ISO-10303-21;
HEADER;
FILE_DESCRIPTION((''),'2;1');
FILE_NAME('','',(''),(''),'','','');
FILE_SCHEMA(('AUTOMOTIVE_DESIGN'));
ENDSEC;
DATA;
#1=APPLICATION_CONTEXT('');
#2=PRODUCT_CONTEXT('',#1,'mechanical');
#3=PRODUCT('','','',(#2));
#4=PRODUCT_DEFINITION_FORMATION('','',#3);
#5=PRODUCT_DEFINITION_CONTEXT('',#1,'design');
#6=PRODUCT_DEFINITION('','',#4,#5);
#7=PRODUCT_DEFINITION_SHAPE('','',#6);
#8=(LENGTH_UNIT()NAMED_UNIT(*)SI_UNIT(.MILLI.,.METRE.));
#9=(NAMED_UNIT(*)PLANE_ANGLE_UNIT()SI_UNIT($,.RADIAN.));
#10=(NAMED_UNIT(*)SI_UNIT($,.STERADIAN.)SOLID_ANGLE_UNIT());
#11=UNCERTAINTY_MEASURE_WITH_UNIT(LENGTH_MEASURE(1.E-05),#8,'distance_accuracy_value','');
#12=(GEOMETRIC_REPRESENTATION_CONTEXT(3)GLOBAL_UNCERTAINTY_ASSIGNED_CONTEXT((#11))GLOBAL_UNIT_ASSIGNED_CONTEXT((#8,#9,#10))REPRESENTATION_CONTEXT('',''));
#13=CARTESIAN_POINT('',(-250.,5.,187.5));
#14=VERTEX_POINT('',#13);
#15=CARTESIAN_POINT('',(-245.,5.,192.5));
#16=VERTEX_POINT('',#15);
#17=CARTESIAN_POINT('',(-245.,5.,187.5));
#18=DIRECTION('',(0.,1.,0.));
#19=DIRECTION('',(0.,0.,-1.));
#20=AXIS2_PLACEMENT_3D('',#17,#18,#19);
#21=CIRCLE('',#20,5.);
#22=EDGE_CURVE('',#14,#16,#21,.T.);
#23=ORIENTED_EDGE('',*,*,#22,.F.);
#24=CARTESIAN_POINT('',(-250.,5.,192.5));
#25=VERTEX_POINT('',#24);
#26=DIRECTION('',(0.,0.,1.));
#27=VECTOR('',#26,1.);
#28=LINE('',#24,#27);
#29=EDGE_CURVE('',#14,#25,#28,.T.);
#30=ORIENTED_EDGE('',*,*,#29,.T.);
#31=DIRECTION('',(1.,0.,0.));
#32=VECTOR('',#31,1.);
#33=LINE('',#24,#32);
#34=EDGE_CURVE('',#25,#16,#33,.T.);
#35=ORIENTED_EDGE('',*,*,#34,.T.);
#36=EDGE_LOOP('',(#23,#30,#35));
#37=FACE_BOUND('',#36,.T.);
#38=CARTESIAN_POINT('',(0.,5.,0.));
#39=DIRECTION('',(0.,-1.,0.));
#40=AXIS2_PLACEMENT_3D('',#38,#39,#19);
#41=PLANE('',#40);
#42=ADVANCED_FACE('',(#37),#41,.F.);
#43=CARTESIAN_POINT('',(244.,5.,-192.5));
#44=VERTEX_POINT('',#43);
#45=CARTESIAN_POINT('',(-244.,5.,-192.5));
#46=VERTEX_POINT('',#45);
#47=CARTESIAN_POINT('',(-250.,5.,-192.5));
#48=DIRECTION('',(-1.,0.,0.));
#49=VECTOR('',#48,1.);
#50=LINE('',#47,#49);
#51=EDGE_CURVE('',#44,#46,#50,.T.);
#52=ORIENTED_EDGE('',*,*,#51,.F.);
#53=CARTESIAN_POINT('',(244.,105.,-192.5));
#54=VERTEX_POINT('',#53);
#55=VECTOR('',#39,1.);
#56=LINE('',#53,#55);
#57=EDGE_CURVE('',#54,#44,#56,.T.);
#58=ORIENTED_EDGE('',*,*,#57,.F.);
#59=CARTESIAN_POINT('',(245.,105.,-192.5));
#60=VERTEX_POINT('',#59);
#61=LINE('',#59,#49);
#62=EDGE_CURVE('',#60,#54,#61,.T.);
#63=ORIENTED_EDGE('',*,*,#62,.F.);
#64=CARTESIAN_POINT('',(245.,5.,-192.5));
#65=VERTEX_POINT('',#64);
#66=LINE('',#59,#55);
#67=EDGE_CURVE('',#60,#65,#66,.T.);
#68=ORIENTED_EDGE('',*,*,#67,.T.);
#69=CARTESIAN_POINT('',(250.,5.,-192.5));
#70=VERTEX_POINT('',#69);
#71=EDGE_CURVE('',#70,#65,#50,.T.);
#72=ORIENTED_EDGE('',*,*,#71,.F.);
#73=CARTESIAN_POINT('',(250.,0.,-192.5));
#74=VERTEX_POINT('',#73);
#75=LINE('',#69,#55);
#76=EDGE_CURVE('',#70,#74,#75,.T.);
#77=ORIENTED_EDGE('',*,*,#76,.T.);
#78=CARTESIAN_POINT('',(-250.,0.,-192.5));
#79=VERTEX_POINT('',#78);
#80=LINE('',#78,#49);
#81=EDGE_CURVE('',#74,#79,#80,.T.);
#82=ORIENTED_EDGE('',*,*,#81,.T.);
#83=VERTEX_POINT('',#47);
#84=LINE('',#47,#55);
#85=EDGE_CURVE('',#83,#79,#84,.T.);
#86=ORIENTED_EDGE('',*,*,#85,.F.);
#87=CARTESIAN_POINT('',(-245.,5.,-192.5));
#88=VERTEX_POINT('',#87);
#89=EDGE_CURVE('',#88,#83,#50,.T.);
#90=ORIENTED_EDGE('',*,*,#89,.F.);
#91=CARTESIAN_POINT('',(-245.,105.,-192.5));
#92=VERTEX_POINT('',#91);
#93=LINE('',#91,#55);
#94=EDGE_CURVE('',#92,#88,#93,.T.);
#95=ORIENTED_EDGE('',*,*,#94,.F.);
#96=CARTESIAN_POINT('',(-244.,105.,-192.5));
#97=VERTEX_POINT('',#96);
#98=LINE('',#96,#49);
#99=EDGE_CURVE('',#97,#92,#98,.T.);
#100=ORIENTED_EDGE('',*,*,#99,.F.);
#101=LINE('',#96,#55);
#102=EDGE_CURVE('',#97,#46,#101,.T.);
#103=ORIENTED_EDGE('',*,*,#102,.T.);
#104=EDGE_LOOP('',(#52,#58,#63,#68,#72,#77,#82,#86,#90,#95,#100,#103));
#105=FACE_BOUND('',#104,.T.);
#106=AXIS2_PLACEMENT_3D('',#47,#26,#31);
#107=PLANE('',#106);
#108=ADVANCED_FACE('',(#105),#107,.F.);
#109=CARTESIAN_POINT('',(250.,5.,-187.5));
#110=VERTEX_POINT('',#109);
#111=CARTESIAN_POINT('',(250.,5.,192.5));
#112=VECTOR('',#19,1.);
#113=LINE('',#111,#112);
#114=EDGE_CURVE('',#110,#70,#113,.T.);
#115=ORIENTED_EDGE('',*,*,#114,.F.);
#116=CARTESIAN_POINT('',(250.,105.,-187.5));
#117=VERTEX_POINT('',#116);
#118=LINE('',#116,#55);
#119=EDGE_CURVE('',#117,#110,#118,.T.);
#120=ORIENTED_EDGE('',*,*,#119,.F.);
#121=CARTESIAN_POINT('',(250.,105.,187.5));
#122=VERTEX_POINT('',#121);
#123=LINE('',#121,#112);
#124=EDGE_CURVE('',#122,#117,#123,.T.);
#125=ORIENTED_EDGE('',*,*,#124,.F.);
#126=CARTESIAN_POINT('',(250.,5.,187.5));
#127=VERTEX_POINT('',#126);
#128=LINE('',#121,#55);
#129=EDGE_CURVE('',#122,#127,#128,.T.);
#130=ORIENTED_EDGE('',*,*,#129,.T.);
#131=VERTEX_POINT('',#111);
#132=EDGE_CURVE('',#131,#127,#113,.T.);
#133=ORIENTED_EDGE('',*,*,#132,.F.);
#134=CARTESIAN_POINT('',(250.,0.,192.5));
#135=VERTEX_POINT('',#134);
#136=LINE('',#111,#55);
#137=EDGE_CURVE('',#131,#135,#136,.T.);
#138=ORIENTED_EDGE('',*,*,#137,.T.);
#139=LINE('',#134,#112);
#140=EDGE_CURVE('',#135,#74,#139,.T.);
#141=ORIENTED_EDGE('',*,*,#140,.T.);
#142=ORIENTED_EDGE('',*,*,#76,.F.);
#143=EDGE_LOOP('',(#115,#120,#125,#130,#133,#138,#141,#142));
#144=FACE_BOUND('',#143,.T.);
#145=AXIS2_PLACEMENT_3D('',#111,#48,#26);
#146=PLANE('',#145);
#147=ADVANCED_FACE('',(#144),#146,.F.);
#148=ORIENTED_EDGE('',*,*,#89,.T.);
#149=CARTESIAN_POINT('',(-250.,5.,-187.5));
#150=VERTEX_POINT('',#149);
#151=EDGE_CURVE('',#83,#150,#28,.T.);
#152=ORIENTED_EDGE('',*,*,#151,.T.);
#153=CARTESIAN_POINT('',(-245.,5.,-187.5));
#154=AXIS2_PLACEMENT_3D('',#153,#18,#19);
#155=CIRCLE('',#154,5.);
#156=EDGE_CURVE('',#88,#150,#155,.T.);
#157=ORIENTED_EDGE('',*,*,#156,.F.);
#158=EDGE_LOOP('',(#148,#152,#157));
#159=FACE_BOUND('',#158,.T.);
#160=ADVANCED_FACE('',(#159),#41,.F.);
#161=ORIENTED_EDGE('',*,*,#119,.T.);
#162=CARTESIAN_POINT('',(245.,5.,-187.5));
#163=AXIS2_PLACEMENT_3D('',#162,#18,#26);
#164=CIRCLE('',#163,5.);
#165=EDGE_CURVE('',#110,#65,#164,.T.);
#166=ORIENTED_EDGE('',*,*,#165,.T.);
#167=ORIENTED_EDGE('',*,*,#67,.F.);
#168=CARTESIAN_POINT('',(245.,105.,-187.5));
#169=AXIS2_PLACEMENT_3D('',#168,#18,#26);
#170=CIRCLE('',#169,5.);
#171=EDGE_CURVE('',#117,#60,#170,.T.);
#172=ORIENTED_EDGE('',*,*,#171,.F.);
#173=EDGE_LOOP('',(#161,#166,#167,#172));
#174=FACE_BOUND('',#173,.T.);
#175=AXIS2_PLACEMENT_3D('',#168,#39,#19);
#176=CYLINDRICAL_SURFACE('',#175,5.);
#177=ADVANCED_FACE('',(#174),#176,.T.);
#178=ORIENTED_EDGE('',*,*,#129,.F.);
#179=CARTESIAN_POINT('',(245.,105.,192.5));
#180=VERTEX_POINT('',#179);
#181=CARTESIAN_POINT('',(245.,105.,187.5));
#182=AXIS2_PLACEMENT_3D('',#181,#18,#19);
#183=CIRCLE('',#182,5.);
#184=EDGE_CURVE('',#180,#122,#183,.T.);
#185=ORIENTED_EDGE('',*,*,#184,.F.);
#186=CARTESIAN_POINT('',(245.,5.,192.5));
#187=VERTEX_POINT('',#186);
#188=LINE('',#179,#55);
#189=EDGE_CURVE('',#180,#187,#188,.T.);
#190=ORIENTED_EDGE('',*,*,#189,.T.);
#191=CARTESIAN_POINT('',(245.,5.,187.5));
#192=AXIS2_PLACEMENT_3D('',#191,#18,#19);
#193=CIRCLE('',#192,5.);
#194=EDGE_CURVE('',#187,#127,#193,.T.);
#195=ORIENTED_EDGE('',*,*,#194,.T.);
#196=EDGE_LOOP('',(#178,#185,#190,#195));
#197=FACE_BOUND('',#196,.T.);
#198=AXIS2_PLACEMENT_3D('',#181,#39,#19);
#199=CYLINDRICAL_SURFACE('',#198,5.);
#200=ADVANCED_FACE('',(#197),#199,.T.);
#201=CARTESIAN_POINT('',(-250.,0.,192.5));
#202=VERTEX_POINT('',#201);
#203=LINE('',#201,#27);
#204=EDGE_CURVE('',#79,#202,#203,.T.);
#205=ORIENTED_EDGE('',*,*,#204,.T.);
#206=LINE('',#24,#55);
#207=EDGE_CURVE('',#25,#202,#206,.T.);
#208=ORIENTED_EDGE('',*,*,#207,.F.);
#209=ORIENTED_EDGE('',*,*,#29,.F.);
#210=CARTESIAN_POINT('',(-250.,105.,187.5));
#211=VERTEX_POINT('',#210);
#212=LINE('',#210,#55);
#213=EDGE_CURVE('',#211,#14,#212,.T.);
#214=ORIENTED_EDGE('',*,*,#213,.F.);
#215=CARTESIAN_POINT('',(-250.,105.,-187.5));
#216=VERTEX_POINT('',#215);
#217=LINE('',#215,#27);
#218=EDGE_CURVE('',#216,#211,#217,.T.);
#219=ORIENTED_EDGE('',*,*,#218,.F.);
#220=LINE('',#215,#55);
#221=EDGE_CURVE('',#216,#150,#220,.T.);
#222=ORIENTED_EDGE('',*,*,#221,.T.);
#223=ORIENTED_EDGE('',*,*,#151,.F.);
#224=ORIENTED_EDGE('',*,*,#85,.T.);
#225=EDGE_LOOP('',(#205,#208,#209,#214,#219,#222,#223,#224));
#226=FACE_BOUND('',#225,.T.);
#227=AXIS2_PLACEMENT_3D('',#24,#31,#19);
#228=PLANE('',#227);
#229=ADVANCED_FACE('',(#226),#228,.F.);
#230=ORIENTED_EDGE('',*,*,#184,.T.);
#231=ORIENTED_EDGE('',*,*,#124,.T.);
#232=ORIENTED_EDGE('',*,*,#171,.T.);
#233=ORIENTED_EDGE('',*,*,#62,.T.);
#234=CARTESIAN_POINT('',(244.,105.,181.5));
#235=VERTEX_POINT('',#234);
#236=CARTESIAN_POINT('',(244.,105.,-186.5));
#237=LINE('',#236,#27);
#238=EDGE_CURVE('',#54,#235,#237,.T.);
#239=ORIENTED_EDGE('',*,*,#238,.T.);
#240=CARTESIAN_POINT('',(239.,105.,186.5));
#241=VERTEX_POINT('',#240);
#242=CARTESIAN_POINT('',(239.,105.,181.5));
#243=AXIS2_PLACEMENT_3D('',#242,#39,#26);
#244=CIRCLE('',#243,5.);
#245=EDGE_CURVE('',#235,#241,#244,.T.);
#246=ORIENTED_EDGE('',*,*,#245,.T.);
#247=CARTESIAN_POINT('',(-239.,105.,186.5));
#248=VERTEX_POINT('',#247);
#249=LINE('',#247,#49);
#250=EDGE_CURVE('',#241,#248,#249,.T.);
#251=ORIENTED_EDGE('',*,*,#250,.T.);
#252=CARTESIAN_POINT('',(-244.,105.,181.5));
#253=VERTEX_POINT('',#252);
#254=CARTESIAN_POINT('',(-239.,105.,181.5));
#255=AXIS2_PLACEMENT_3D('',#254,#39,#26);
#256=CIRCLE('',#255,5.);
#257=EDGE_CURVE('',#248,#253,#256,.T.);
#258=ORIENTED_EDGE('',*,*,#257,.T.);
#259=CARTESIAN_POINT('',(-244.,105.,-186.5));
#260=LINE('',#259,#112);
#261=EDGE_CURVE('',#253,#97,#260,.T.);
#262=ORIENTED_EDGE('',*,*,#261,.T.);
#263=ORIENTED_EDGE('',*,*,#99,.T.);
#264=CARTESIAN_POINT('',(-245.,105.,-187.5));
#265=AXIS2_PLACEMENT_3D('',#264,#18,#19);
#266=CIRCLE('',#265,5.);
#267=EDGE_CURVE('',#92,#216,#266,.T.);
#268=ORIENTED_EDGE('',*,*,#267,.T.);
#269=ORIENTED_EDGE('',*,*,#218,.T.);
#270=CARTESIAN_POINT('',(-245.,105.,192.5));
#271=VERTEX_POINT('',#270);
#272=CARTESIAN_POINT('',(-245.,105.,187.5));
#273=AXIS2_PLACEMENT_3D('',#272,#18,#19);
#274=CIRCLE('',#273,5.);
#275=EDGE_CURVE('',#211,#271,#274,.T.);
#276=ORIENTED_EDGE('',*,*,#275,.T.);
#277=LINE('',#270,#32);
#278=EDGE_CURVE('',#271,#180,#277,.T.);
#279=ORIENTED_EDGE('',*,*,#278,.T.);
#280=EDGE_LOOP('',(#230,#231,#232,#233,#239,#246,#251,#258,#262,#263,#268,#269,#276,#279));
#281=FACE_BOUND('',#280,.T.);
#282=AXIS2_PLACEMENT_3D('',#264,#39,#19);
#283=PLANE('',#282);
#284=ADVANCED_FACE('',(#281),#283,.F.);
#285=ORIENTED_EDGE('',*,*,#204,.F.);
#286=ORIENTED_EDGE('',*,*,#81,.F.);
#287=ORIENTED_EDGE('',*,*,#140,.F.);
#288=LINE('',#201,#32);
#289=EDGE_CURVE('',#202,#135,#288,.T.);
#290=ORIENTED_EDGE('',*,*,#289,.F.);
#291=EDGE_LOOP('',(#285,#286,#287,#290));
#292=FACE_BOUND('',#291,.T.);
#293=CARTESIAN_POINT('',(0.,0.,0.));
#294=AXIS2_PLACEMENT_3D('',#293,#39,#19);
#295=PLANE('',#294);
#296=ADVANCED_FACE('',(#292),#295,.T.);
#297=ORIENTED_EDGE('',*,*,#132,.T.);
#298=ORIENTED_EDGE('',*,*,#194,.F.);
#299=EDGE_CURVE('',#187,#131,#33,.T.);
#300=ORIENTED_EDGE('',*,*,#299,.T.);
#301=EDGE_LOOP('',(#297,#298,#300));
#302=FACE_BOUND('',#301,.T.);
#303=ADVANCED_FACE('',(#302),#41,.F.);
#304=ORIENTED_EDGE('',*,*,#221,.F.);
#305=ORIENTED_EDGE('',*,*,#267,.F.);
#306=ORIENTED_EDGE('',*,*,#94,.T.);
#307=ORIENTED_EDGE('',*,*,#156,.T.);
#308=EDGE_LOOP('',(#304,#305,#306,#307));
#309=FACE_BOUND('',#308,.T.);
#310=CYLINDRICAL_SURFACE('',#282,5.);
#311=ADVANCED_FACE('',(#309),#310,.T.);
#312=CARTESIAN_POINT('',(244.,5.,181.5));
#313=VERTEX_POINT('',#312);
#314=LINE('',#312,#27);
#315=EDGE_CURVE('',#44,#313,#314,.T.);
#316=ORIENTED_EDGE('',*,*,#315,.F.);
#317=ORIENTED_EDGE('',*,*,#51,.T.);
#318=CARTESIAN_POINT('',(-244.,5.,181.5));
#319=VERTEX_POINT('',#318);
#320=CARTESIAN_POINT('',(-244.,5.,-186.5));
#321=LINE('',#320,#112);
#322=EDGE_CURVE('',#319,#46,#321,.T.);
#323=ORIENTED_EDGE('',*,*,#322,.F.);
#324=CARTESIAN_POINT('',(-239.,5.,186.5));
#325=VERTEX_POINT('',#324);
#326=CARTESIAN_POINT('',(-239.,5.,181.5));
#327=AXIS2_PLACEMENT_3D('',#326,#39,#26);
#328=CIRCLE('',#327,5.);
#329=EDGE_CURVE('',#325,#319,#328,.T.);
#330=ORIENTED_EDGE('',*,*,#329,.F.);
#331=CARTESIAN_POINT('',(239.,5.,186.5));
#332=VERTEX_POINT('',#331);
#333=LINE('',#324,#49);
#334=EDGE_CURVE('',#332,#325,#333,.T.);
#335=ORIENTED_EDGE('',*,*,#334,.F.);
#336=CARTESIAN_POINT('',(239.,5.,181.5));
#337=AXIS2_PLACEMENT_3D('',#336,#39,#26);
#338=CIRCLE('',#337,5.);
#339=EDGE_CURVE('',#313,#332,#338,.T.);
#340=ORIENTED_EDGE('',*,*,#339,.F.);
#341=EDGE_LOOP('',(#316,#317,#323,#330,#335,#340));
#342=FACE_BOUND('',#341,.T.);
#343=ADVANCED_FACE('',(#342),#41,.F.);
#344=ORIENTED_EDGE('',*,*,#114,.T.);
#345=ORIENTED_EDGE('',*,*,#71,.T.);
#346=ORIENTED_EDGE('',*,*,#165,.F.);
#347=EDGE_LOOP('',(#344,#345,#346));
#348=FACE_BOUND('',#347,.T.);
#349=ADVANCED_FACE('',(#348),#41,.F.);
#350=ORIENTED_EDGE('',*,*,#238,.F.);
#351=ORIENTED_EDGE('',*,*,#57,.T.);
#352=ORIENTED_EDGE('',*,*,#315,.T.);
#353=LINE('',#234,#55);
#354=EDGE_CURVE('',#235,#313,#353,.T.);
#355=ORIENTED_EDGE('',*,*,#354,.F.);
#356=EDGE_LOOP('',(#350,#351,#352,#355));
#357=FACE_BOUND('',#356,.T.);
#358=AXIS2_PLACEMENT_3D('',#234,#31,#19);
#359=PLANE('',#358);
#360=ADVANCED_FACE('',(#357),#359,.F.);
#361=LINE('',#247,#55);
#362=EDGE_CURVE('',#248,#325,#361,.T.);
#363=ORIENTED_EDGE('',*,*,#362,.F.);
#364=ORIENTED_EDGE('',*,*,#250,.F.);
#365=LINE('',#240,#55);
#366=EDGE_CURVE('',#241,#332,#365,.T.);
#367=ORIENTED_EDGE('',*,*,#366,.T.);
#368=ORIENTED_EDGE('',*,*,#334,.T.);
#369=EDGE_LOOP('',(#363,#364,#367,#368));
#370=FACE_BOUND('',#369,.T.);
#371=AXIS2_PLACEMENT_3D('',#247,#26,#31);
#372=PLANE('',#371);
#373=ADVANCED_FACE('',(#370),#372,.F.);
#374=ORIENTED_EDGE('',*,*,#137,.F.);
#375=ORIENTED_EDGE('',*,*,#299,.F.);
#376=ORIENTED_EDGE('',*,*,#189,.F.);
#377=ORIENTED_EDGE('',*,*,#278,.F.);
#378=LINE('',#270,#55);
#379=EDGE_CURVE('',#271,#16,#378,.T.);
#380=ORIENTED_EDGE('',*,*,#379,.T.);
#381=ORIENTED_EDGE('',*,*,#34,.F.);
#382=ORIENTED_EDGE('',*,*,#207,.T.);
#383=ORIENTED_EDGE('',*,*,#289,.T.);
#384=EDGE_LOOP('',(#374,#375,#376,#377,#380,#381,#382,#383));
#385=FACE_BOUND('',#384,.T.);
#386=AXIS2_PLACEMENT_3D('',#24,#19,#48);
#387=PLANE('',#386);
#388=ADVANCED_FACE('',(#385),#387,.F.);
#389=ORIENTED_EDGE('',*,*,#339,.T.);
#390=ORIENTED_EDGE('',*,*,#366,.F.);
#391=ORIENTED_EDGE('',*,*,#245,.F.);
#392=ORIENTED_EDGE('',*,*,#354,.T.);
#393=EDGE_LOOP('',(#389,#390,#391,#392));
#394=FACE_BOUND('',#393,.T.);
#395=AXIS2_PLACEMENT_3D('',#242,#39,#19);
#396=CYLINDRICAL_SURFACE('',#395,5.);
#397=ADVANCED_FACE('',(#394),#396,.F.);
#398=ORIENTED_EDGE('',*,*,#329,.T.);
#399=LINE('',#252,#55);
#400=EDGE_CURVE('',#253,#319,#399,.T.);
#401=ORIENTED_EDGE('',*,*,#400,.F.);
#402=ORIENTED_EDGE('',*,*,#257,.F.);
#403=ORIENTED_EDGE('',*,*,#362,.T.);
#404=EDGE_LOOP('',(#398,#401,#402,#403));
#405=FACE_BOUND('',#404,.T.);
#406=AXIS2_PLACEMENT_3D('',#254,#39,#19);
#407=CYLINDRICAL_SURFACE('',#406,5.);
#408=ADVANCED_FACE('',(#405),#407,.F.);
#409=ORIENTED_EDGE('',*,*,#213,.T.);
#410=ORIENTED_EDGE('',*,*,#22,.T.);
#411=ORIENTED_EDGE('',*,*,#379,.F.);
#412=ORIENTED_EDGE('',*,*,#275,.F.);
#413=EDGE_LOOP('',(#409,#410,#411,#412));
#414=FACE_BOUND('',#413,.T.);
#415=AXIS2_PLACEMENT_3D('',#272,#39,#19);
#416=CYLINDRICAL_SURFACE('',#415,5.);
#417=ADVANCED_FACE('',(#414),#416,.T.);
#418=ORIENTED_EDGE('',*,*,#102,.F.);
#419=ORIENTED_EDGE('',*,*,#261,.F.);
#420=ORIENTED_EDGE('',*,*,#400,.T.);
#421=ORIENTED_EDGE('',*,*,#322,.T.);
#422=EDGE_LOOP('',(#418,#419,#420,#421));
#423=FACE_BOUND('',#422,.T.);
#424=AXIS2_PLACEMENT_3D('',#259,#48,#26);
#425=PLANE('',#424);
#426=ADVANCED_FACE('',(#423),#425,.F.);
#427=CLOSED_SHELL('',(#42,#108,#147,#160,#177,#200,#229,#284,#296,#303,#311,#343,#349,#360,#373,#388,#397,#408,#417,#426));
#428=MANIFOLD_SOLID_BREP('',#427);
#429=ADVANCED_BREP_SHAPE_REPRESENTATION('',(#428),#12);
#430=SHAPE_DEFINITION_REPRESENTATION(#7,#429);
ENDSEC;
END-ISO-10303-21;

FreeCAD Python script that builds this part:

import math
import FreeCAD as App
import Part
import Sketcher
from FreeCAD import Vector


def add_polygon(sketch, points):
    """Adds a closed chain of lines whose ends are joined by coincident constraints."""
    first, n = sketch.GeometryCount, len(points)
    for a, b in zip(points, points[1:] + points[:1]):
        sketch.addGeometry(Part.LineSegment(App.Vector(*a, 0), App.Vector(*b, 0)), False)
    for i in range(n):
        sketch.addConstraint(Sketcher.Constraint("Coincident", first + i, 2, first + (i + 1) % n, 1))

doc = App.newDocument("Part")
body = doc.addObject("PartDesign::Body", "Body")

# Sketch on XZ plane
sketch1 = body.newObject("Sketcher::SketchObject", "Sketch")
sketch1.AttachmentSupport = (doc.getObject("XZ_Plane"), [""])
sketch1.MapMode = "FlatFace"
add_polygon(sketch1, [(-250, -192), (-250, 192), (250, 192), (250, -192)])  # lines 0-3
sketch1.addConstraint([
    Sketcher.Constraint("Vertical", 0),
    Sketcher.Constraint("Horizontal", 1),
    Sketcher.Constraint("Vertical", 2),
    Sketcher.Constraint("Horizontal", 3),
    Sketcher.Constraint("Symmetric", 0, 2, 2, 2, -1, 1),
    Sketcher.Constraint("DistanceX", 1, 1, 1, 2, 500.0),
    Sketcher.Constraint("DistanceY", 0, 1, 0, 2, 385.0),
])
pad1 = body.newObject("PartDesign::Pad", "Pad")
pad1.Profile = sketch1
pad1.Length = 5
pad1.Reversed = True

# Sketch on XZ plane
sketch2 = body.newObject("Sketcher::SketchObject", "Sketch001")
sketch2.AttachmentSupport = (doc.getObject("XZ_Plane"), [""])
sketch2.MapMode = "FlatFace"
sketch2.AttachmentOffset = App.Placement(Vector(0, 0, -5), App.Rotation())
sketch2.addGeometry([
    Part.ArcOfCircle(Part.Circle(Vector(-239, 181.5, 0), Vector(0, 0, 1), 5), math.radians(90), math.radians(180)),  # 0
    Part.LineSegment(Vector(-244, 181.5, 0), Vector(-244, -192.5, 0)),  # 1
    Part.LineSegment(Vector(-244, -192.5, 0), Vector(-245, -192.5, 0)),  # 2
    Part.ArcOfCircle(Part.Circle(Vector(-245, -187.5, 0), Vector(0, 0, 1), 5), math.radians(180), math.radians(270)),  # 3
    Part.LineSegment(Vector(-250, -187.5, 0), Vector(-250, 187.5, 0)),  # 4
    Part.ArcOfCircle(Part.Circle(Vector(-245, 187.5, 0), Vector(0, 0, 1), 5), math.radians(90), math.radians(180)),  # 5
    Part.LineSegment(Vector(-245, 192.5, 0), Vector(245, 192.5, 0)),  # 6
    Part.ArcOfCircle(Part.Circle(Vector(245, 187.5, 0), Vector(0, 0, 1), 5), math.radians(0), math.radians(90)),  # 7
    Part.LineSegment(Vector(250, 187.5, 0), Vector(250, -187.5, 0)),  # 8
    Part.ArcOfCircle(Part.Circle(Vector(245, -187.5, 0), Vector(0, 0, 1), 5), math.radians(-90), math.radians(0)),  # 9
    Part.LineSegment(Vector(245, -192.5, 0), Vector(244, -192.5, 0)),  # 10
    Part.LineSegment(Vector(244, -192.5, 0), Vector(244, 181.5, 0)),  # 11
    Part.ArcOfCircle(Part.Circle(Vector(239, 181.5, 0), Vector(0, 0, 1), 5), math.radians(0), math.radians(90)),  # 12
    Part.LineSegment(Vector(239, 186.5, 0), Vector(-239, 186.5, 0)),  # 13
], False)
sketch2.addConstraint([
    Sketcher.Constraint("Tangent", 0, 2, 1, 1),
    Sketcher.Constraint("Coincident", 1, 2, 2, 1),
    Sketcher.Constraint("Tangent", 2, 2, 3, 2),
    Sketcher.Constraint("Tangent", 3, 1, 4, 1),
    Sketcher.Constraint("Tangent", 4, 2, 5, 2),
    Sketcher.Constraint("Tangent", 5, 1, 6, 1),
    Sketcher.Constraint("Tangent", 6, 2, 7, 2),
    Sketcher.Constraint("Tangent", 7, 1, 8, 1),
    Sketcher.Constraint("Tangent", 8, 2, 9, 2),
    Sketcher.Constraint("Tangent", 9, 1, 10, 1),
    Sketcher.Constraint("Coincident", 10, 2, 11, 1),
    Sketcher.Constraint("Tangent", 11, 2, 12, 1),
    Sketcher.Constraint("Tangent", 12, 2, 13, 1),
    Sketcher.Constraint("Tangent", 13, 2, 0, 1),
    Sketcher.Constraint("Vertical", 1),
    Sketcher.Constraint("Horizontal", 2),
    Sketcher.Constraint("Vertical", 4),
    Sketcher.Constraint("Horizontal", 6),
    Sketcher.Constraint("Vertical", 8),
    Sketcher.Constraint("Horizontal", 10),
    Sketcher.Constraint("Vertical", 11),
    Sketcher.Constraint("Horizontal", 13),
    Sketcher.Constraint("Equal", 0, 3),
    Sketcher.Constraint("Equal", 3, 5),
    Sketcher.Constraint("Equal", 5, 7),
    Sketcher.Constraint("Equal", 7, 9),
    Sketcher.Constraint("Equal", 9, 12),
    Sketcher.Constraint("Symmetric", 3, 3, 7, 3, -1, 1),
    Sketcher.Constraint("Symmetric", 1, 2, 10, 2, -2),
    Sketcher.Constraint("Radius", 0, 5.0),
    Sketcher.Constraint("DistanceX", 2, 2, 2, 1, 1.0),
    Sketcher.Constraint("DistanceX", 6, 1, 6, 2, 490.0),
    Sketcher.Constraint("DistanceY", 1, 2, 1, 1, 374.0),
    Sketcher.Constraint("DistanceY", 4, 1, 4, 2, 375.0),
])
pad2 = body.newObject("PartDesign::Pad", "Pad001")
pad2.Profile = sketch2
pad2.Length = 100
pad2.Reversed = True

doc.recompute()
